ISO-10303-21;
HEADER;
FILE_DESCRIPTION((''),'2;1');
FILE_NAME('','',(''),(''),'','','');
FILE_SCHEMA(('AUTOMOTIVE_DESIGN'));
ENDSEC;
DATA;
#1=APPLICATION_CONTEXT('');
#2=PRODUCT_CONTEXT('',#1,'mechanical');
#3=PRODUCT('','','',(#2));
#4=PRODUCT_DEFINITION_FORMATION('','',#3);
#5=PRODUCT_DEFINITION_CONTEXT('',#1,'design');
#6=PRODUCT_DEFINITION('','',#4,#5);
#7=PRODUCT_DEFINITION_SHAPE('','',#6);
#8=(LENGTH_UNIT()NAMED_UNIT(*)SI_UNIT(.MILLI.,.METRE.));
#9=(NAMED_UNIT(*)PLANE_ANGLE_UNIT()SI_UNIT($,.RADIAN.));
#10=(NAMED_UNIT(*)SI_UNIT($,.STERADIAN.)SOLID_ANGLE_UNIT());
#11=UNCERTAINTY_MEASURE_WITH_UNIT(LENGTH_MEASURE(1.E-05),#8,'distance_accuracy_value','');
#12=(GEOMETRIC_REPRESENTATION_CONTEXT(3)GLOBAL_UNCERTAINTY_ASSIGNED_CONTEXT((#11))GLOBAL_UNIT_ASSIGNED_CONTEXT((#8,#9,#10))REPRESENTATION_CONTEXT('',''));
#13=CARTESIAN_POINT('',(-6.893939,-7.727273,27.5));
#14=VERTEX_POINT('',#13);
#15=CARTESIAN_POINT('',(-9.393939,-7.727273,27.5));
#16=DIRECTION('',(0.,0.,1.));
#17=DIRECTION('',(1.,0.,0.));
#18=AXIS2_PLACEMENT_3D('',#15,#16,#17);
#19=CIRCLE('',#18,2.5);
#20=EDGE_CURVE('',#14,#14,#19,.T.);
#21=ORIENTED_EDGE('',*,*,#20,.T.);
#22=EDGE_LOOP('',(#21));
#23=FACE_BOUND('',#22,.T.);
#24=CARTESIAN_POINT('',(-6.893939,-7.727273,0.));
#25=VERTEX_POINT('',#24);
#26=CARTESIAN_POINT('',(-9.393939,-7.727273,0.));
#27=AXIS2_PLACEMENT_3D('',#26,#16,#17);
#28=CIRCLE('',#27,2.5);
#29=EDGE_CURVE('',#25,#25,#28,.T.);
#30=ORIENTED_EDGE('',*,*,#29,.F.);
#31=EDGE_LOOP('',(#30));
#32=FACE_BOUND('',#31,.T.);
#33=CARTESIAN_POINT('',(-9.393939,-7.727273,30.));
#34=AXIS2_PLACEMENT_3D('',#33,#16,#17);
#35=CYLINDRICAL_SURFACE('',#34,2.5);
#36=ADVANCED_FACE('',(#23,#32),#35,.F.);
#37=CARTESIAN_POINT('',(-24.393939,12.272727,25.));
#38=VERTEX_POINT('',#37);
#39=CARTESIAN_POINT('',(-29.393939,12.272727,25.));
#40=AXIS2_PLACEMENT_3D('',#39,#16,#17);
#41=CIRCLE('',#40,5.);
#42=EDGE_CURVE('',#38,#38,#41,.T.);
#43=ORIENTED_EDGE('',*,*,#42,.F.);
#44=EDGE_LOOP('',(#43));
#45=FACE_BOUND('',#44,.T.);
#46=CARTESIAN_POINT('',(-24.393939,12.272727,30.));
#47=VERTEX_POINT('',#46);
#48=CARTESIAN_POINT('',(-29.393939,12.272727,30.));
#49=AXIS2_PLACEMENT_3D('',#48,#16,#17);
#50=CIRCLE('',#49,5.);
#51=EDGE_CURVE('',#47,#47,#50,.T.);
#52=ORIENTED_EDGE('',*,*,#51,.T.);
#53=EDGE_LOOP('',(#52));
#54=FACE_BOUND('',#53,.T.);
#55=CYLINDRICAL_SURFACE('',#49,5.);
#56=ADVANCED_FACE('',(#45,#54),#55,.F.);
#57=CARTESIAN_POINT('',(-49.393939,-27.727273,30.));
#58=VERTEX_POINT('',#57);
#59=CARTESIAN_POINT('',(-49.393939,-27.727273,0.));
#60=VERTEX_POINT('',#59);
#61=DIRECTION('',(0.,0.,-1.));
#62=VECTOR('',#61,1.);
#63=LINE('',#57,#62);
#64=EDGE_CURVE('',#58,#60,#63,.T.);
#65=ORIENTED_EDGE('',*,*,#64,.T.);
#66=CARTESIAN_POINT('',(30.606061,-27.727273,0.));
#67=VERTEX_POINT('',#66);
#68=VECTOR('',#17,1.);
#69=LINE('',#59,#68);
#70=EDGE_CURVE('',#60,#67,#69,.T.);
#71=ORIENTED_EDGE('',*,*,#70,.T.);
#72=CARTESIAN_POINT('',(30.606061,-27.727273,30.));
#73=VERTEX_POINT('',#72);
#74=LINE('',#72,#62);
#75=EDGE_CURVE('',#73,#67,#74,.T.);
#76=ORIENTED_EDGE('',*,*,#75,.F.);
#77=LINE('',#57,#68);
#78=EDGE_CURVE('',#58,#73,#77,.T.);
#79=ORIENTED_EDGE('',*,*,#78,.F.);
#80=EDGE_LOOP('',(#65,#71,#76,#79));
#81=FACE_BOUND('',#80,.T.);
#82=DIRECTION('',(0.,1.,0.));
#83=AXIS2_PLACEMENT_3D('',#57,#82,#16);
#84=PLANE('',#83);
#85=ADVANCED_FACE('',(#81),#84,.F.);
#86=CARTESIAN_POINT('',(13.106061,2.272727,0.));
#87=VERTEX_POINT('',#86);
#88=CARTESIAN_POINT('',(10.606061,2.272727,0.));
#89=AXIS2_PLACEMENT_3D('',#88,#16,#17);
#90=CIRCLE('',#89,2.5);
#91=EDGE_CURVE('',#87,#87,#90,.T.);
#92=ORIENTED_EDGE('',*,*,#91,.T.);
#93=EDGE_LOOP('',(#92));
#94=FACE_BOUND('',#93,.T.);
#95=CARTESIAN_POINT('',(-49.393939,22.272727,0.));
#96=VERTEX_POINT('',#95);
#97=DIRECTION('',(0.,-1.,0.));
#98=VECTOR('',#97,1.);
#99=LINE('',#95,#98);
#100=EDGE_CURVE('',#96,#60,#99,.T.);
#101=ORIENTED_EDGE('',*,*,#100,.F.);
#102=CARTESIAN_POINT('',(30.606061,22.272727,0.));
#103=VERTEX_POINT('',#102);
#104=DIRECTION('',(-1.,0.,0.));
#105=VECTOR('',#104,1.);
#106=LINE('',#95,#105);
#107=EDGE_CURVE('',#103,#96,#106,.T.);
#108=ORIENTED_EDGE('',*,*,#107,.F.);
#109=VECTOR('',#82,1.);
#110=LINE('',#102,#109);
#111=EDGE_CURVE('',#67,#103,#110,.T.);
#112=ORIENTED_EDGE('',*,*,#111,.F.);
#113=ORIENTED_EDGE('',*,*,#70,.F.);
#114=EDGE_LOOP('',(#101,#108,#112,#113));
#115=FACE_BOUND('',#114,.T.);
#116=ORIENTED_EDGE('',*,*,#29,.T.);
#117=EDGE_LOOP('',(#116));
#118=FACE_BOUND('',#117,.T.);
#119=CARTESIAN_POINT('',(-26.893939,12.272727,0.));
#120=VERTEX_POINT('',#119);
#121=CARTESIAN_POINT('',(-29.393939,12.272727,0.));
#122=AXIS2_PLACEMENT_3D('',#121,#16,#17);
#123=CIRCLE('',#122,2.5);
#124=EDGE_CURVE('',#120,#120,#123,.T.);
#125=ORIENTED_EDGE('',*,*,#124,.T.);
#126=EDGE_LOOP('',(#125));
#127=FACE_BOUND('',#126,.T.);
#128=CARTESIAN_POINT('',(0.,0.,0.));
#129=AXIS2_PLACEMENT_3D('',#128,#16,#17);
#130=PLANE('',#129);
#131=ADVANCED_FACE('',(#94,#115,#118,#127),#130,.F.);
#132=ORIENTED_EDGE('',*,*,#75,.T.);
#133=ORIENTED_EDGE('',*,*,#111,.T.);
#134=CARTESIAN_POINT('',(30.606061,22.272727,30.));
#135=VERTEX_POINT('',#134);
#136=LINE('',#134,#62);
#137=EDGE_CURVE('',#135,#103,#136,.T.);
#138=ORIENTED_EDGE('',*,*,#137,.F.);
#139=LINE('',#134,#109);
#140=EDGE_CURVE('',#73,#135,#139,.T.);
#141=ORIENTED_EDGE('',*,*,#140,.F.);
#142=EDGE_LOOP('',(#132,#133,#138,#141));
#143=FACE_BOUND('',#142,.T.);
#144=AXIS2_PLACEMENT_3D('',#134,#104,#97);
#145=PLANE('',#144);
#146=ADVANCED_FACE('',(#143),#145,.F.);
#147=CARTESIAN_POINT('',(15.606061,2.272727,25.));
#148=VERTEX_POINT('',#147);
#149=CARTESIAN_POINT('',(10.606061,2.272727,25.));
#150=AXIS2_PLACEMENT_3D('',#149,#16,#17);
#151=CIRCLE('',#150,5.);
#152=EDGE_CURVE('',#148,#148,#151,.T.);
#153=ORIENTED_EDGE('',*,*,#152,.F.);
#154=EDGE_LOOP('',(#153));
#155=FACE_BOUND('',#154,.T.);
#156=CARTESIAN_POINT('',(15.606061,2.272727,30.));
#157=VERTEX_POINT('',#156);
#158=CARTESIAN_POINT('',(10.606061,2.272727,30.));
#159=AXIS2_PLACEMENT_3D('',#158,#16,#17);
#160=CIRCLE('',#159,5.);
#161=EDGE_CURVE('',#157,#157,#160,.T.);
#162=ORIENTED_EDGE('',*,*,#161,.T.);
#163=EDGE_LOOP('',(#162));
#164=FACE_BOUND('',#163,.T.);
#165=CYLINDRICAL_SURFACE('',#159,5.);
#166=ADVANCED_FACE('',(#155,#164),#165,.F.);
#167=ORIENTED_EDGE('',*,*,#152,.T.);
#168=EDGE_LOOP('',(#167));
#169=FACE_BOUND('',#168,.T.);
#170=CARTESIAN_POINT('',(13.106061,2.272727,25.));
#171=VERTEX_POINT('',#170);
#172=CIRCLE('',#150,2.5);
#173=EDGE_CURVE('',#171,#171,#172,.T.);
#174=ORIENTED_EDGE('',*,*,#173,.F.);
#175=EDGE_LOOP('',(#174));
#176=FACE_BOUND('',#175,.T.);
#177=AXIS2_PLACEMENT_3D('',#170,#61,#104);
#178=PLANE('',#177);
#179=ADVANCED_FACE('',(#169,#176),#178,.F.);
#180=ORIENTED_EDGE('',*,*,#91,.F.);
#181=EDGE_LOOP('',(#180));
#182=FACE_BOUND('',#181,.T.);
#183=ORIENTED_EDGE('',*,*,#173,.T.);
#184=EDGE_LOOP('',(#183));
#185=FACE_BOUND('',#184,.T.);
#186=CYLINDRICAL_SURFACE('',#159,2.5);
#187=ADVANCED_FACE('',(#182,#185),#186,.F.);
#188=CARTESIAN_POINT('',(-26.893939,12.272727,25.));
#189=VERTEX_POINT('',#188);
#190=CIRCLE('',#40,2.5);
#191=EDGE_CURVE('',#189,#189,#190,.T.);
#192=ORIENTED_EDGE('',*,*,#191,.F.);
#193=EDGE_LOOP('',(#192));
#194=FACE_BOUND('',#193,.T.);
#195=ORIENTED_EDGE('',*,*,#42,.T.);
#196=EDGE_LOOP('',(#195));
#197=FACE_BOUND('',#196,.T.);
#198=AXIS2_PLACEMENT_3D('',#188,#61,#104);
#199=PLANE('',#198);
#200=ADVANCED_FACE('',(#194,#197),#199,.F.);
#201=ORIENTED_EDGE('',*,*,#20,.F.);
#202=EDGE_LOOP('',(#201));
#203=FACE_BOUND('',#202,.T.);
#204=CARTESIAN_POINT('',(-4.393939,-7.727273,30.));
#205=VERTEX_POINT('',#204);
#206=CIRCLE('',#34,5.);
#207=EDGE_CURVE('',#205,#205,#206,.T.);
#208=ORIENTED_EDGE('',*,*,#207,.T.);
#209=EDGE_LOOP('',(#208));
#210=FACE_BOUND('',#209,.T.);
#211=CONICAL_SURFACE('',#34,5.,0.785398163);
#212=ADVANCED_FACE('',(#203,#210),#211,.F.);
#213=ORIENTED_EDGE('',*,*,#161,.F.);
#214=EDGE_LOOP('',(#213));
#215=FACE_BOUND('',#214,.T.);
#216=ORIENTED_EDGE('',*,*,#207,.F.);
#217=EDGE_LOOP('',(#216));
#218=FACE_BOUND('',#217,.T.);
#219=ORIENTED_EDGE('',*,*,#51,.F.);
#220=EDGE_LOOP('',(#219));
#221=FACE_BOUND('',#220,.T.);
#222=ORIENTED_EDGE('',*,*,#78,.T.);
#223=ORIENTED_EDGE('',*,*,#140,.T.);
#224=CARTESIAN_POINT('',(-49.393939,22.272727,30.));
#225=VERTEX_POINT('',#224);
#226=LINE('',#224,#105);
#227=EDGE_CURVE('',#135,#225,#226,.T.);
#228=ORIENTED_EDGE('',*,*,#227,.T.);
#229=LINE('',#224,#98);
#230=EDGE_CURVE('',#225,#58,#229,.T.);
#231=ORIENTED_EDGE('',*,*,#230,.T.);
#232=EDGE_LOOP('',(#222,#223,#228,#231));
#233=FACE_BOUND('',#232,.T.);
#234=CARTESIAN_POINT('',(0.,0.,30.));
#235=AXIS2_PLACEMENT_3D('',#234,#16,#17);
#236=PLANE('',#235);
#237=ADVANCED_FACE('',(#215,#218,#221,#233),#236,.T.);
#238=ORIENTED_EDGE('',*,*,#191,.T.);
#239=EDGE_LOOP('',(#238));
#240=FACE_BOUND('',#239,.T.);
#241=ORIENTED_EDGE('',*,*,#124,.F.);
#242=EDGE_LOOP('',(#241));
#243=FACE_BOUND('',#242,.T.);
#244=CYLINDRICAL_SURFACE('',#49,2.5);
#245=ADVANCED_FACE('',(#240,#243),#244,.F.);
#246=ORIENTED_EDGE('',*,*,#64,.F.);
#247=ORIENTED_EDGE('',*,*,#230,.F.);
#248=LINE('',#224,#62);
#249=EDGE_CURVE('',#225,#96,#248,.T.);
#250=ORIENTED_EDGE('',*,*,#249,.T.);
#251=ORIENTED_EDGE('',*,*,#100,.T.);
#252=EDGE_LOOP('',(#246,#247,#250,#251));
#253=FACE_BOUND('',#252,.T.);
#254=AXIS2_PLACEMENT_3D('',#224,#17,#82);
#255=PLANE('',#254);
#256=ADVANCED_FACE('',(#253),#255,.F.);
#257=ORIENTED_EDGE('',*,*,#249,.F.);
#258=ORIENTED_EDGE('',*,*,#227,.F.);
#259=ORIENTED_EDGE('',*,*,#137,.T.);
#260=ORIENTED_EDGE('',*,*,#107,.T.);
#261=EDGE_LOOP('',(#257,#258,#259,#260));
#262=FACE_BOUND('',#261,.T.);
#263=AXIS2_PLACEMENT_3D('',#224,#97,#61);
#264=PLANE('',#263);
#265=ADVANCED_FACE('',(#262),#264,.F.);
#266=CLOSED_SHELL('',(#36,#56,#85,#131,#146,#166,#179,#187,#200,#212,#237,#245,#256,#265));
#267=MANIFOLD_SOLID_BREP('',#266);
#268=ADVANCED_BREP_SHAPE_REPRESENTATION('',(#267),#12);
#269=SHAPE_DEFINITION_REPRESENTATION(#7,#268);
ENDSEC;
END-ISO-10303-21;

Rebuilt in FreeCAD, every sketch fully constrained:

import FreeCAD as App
import Part
import Sketcher
from FreeCAD import Vector


def add_polygon(sketch, points):
    """Adds a closed chain of lines whose ends are joined by coincident constraints."""
    first, n = sketch.GeometryCount, len(points)
    for a, b in zip(points, points[1:] + points[:1]):
        sketch.addGeometry(Part.LineSegment(App.Vector(*a, 0), App.Vector(*b, 0)), False)
    for i in range(n):
        sketch.addConstraint(Sketcher.Constraint("Coincident", first + i, 2, first + (i + 1) % n, 1))

doc = App.newDocument("Part")
body = doc.addObject("PartDesign::Body", "Body")

# Sketch on XY plane
sketch1 = body.newObject("Sketcher::SketchObject", "Sketch")
sketch1.AttachmentSupport = (doc.getObject("XY_Plane"), [""])
sketch1.MapMode = "FlatFace"
add_polygon(sketch1, [(-49.393939, 22.272727), (-49.393939, -27.727273), (30.606061, -27.727273), (30.606061, 22.272727)])  # lines 0-3
sketch1.addConstraint(Sketcher.Constraint("Vertical", 0))
sketch1.addConstraint(Sketcher.Constraint("Horizontal", 1))
sketch1.addConstraint(Sketcher.Constraint("Vertical", 2))
sketch1.addConstraint(Sketcher.Constraint("Horizontal", 3))
sketch1.addConstraint(Sketcher.Constraint("DistanceX", 1, 1, 1, 2, 80.0))
sketch1.addConstraint(Sketcher.Constraint("DistanceY", 0, 2, 0, 1, 50.0))
sketch1.addConstraint(Sketcher.Constraint("DistanceX", 0, 2, -1, 1, 49.393939))
sketch1.addConstraint(Sketcher.Constraint("DistanceY", 0, 2, -1, 1, 27.727273))
pad1 = body.newObject("PartDesign::Pad", "Pad")
pad1.Profile = sketch1
pad1.Length = 30

# Sketch on XY plane
sketch2 = body.newObject("Sketcher::SketchObject", "Sketch001")
sketch2.AttachmentSupport = (doc.getObject("XY_Plane"), [""])
sketch2.MapMode = "FlatFace"
sketch2.AttachmentOffset = App.Placement(Vector(0, 0, 30), App.Rotation())
sketch2.addGeometry(Part.Circle(Vector(-29.393939, 12.272727, 0), Vector(0, 0, 1), 2.5), False)
sketch2.addConstraint(Sketcher.Constraint("Diameter", 0, 5.0))
sketch2.addConstraint(Sketcher.Constraint("DistanceX", 0, 3, -1, 1, 29.393939))
sketch2.addConstraint(Sketcher.Constraint("DistanceY", -1, 1, 0, 3, 12.272727))
doc.recompute()
hole = body.newObject("PartDesign::Hole", "Hole")
hole.Profile = sketch2
hole.ThreadType = "None"
hole.Diameter = 5
hole.DepthType = "ThroughAll"
hole.HoleCutType = "Counterbore"
hole.HoleCutDiameter = 10
hole.HoleCutDepth = 5

# Sketch on XY plane
sketch3 = body.newObject("Sketcher::SketchObject", "Sketch002")
sketch3.AttachmentSupport = (doc.getObject("XY_Plane"), [""])
sketch3.MapMode = "FlatFace"
sketch3.AttachmentOffset = App.Placement(Vector(0, 0, 30), App.Rotation())
sketch3.addGeometry(Part.Circle(Vector(10.606061, 2.272727, 0), Vector(0, 0, 1), 2.5), False)
sketch3.addConstraint(Sketcher.Constraint("Diameter", 0, 5.0))
sketch3.addConstraint(Sketcher.Constraint("DistanceX", -1, 1, 0, 3, 10.606061))
sketch3.addConstraint(Sketcher.Constraint("DistanceY", -1, 1, 0, 3, 2.272727))
doc.recompute()
hole2 = body.newObject("PartDesign::Hole", "Hole001")
hole2.Profile = sketch3
hole2.ThreadType = "None"
hole2.Diameter = 5
hole2.DepthType = "ThroughAll"
hole2.HoleCutType = "Counterbore"
hole2.HoleCutDiameter = 10
hole2.HoleCutDepth = 5

# Sketch on XY plane
sketch4 = body.newObject("Sketcher::SketchObject", "Sketch003")
sketch4.AttachmentSupport = (doc.getObject("XY_Plane"), [""])
sketch4.MapMode = "FlatFace"
sketch4.AttachmentOffset = App.Placement(Vector(0, 0, 30), App.Rotation())
sketch4.addGeometry(Part.Circle(Vector(-9.393939, -7.727273, 0), Vector(0, 0, 1), 2.5), False)
sketch4.addConstraint(Sketcher.Constraint("Diameter", 0, 5.0))
sketch4.addConstraint(Sketcher.Constraint("DistanceX", 0, 3, -1, 1, 9.393939))
sketch4.addConstraint(Sketcher.Constraint("DistanceY", 0, 3, -1, 1, 7.727273))
doc.recompute()
hole3 = body.newObject("PartDesign::Hole", "Hole002")
hole3.Profile = sketch4
hole3.ThreadType = "None"
hole3.Diameter = 5
hole3.DepthType = "ThroughAll"
hole3.HoleCutType = "Countersink"
hole3.HoleCutDiameter = 10
hole3.HoleCutCountersinkAngle = 90

doc.recompute()
